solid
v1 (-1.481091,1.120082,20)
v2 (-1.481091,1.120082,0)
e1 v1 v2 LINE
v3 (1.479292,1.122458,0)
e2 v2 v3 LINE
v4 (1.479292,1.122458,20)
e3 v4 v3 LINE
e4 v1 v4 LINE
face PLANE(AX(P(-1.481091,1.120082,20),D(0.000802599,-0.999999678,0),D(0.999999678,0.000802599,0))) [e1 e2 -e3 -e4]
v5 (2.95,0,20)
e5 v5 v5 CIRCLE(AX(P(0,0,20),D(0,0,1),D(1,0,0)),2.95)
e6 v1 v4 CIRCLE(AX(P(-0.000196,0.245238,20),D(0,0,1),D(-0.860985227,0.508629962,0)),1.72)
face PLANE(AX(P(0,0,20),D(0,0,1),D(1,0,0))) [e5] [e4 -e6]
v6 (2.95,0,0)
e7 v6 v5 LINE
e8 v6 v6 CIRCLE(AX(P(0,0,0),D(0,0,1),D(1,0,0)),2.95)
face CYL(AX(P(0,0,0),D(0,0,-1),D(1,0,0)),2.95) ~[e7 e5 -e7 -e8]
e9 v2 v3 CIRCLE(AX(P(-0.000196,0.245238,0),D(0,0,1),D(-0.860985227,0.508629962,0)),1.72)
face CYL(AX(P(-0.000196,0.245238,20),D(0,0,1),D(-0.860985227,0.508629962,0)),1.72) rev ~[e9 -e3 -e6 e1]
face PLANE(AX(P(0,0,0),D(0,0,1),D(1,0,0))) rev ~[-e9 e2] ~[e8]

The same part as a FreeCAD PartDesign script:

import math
import FreeCAD as App
import Part
import Sketcher
from FreeCAD import Vector
Q = App.Units.Quantity

doc = App.newDocument("Part")
body = doc.addObject("PartDesign::Body", "Body")

# Sketch on XY plane
sketch1 = doc.addObject("Sketcher::SketchObject", "Sketch")
body.addObject(sketch1)
sketch1.AttachmentSupport = (doc.XY_Plane, [""])
sketch1.MapMode = "FlatFace"
sketch1.addGeometry(Part.Circle(Vector(0, 0, 0), Vector(0, 0, 1), 3), False)
sketch1.addConstraint([
    Sketcher.Constraint("Coincident", 0, 3, -1, 1),
    Sketcher.Constraint("Diameter", 0, Q("5.9 mm")),
])
pad1 = doc.addObject("PartDesign::Pad", "Pad")
body.addObject(pad1)
pad1.Profile = sketch1
pad1.Length = 20

# Sketch on XY plane
sketch2 = doc.addObject("Sketcher::SketchObject", "Sketch001")
body.addObject(sketch2)
sketch2.AttachmentSupport = (doc.XY_Plane, [""])
sketch2.MapMode = "FlatFace"
sketch2.AttachmentOffset = App.Placement(Vector(0, 0, 20), App.Rotation())
sketch2.addGeometry([
    Part.ArcOfCircle(Part.Circle(Vector(0, 0.2, 0), Vector(0, 0, 1), 1.7), math.radians(149), math.radians(391)),
    Part.LineSegment(Vector(1.5, 1.1, 0), Vector(-1.5, 1.1, 0)),
], False)
sketch2.addConstraint([
    Sketcher.Constraint("Coincident", 0, 1, 1, 2),
    Sketcher.Constraint("Coincident", 1, 1, 0, 2),
    Sketcher.Constraint("Radius", 0, Q("1.72 mm")),
    Sketcher.Constraint("DistanceY", -1, 1, 0, 3, Q("0.245238 mm")),
    Sketcher.Constraint("DistanceX", 0, 1, -1, 1, Q("1.481091 mm")),
    Sketcher.Constraint("DistanceY", -1, 1, 0, 1, Q("1.120082 mm")),
    Sketcher.Constraint("DistanceX", 0, 3, 1, 1, Q("1.479488 mm")),
])
pocket1 = doc.addObject("PartDesign::Pocket", "Pocket")
body.addObject(pocket1)
pocket1.Profile = sketch2
pocket1.Length = 20

doc.recompute()
